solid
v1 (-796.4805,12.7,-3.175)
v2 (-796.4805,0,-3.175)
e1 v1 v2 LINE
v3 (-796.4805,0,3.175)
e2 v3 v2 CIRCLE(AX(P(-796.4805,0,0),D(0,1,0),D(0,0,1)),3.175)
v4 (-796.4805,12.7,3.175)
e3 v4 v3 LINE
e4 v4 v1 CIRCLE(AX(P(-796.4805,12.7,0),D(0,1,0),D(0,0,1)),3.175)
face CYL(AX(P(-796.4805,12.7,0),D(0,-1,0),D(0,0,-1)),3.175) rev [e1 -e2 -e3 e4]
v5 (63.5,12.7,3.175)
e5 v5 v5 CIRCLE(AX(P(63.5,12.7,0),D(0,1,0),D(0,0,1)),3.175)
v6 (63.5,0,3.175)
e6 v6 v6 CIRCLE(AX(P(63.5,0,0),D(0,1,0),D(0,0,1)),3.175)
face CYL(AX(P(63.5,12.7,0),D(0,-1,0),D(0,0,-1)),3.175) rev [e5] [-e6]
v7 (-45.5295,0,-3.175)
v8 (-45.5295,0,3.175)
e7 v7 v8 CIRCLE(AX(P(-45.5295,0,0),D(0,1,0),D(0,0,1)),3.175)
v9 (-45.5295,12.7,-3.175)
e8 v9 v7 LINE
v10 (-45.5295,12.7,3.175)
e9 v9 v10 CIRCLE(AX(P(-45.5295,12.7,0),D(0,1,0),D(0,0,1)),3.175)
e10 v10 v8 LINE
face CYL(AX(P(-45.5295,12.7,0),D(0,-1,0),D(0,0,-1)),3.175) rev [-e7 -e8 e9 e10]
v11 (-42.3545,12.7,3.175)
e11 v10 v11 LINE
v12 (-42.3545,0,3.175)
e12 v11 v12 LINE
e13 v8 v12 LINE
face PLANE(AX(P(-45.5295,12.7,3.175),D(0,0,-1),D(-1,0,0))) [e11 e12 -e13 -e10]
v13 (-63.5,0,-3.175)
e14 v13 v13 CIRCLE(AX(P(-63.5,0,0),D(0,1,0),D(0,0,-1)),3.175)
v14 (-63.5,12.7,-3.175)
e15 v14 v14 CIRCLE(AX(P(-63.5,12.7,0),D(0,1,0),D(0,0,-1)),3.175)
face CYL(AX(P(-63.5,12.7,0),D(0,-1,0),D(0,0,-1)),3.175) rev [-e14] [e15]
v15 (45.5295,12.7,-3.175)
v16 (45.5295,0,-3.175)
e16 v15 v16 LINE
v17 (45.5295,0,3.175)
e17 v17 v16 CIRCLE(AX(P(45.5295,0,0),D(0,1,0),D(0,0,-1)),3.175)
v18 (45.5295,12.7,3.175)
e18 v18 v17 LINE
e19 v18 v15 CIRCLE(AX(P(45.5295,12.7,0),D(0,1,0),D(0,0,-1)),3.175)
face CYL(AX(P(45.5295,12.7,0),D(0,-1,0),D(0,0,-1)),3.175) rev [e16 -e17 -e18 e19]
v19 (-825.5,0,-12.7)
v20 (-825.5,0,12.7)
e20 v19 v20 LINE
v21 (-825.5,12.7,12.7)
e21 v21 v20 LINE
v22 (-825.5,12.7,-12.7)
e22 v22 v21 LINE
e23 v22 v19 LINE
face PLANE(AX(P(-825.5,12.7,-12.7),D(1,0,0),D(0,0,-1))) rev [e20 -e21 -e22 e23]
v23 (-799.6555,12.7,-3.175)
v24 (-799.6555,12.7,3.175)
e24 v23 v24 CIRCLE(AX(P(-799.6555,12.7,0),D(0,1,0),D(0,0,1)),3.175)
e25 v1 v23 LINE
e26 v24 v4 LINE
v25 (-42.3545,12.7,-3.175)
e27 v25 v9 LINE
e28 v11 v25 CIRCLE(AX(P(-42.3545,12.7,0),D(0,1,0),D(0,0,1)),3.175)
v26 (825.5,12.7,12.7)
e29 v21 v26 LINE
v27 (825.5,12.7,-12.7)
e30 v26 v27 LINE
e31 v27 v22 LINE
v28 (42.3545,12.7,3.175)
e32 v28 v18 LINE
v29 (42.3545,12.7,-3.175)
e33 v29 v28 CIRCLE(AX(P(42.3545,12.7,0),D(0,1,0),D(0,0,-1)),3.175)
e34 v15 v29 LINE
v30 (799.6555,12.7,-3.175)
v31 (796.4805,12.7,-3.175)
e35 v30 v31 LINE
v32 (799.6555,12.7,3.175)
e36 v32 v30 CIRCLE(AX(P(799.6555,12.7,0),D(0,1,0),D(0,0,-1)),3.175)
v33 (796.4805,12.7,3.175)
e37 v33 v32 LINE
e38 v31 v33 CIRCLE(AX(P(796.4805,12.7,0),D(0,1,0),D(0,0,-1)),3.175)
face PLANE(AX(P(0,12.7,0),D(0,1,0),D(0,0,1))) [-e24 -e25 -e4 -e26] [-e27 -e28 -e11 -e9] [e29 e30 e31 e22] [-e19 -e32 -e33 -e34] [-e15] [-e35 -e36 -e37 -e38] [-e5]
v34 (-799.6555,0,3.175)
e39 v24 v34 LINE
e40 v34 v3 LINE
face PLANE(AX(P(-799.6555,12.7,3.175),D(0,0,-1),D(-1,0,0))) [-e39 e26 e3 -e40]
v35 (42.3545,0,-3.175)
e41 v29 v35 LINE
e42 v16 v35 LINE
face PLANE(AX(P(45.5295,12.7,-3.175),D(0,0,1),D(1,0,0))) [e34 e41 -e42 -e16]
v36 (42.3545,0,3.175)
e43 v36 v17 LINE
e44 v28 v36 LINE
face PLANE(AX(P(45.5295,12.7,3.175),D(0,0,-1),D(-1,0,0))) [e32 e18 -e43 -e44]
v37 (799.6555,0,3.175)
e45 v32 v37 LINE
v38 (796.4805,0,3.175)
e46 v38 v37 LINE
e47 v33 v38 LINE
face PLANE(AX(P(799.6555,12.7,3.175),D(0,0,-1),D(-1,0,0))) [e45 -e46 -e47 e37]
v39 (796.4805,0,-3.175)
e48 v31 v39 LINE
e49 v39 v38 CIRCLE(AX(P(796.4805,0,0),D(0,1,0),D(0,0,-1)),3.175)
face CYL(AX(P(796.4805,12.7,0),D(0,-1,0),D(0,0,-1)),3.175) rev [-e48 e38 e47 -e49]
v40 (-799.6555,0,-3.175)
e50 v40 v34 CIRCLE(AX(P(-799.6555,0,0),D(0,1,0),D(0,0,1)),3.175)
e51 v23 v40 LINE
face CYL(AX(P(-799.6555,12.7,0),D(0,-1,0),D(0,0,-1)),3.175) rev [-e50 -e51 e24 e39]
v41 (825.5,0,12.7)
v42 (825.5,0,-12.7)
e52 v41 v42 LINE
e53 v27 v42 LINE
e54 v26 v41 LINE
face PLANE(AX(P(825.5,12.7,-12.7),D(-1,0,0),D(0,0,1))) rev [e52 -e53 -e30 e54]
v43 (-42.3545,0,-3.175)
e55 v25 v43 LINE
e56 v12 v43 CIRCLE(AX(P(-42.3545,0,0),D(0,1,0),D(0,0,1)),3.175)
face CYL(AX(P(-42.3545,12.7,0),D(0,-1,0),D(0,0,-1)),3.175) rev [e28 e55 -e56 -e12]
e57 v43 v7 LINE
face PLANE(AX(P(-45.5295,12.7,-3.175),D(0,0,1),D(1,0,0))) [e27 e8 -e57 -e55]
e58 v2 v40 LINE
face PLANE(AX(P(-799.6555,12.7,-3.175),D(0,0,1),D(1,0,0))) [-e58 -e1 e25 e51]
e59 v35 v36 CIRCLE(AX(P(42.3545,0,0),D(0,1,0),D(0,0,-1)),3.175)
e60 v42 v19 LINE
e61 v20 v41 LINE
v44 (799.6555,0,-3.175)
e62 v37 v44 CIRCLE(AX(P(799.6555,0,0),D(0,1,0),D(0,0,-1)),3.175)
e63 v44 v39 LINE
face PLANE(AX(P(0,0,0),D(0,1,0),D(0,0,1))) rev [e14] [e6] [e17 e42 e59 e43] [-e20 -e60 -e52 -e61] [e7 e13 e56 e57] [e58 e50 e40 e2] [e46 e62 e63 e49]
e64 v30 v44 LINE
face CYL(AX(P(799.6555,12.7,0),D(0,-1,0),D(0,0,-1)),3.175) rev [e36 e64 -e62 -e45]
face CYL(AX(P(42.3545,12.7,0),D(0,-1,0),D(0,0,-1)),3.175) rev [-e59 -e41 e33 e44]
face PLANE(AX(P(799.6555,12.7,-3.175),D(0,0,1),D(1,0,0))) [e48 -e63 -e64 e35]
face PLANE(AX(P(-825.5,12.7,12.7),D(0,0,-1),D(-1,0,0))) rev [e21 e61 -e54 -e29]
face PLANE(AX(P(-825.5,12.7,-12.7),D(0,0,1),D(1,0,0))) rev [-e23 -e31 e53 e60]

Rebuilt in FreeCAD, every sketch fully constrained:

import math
import FreeCAD as App
import Part
import Sketcher

V = App.Vector
Q = App.Units.Quantity


def add_polygon(sketch, points):
    """Adds a closed chain of lines whose ends are joined by coincident constraints."""
    first, n = sketch.GeometryCount, len(points)
    for a, b in zip(points, points[1:] + points[:1]):
        sketch.addGeometry(Part.LineSegment(App.Vector(*a, 0), App.Vector(*b, 0)), False)
    for i in range(n):
        sketch.addConstraint(Sketcher.Constraint("Coincident", first + i, 2, first + (i + 1) % n, 1))

doc = App.newDocument("Part")
body = doc.addObject("PartDesign::Body", "Body")

sketch1 = body.newObject("Sketcher::SketchObject", "Sketch")
sketch1.AttachmentSupport = (doc.getObject("XZ_Plane"), [""])
sketch1.MapMode = "FlatFace"
add_polygon(sketch1, [(-825.5, -12.7), (-825.5, 12.7), (825.5, 12.7), (825.5, -12.7)])
sketch1.addGeometry(Part.ArcOfCircle(Part.Circle(V(-799.7, 0, 0), V(0, 0, 1), 3.2), math.radians(90), math.radians(270)), False)
sketch1.addGeometry(Part.LineSegment(V(-799.7, -3.2, 0), V(-796.5, -3.2, 0)), False)
sketch1.addGeometry(Part.ArcOfCircle(Part.Circle(V(-796.5, 0, 0), V(0, 0, 1), 3.2), math.radians(-90), math.radians(90)), False)
sketch1.addGeometry(Part.LineSegment(V(-796.5, 3.2, 0), V(-799.7, 3.2, 0)), False)
sketch1.addGeometry(Part.Circle(V(-63.5, 0, 0), V(0, 0, 1), 3.2), False)
sketch1.addGeometry(Part.ArcOfCircle(Part.Circle(V(-45.5, 0, 0), V(0, 0, 1), 3.2), math.radians(90), math.radians(270)), False)
sketch1.addGeometry(Part.LineSegment(V(-45.5, -3.2, 0), V(-42.4, -3.2, 0)), False)
sketch1.addGeometry(Part.ArcOfCircle(Part.Circle(V(-42.4, 0, 0), V(0, 0, 1), 3.2), math.radians(-90), math.radians(90)), False)
sketch1.addGeometry(Part.LineSegment(V(-42.4, 3.2, 0), V(-45.5, 3.2, 0)), False)
sketch1.addGeometry(Part.LineSegment(V(42.4, -3.2, 0), V(45.5, -3.2, 0)), False)
sketch1.addGeometry(Part.ArcOfCircle(Part.Circle(V(45.5, 0, 0), V(0, 0, 1), 3.2), math.radians(-90), math.radians(90)), False)
sketch1.addGeometry(Part.LineSegment(V(45.5, 3.2, 0), V(42.4, 3.2, 0)), False)
sketch1.addGeometry(Part.ArcOfCircle(Part.Circle(V(42.4, 0, 0), V(0, 0, 1), 3.2), math.radians(90), math.radians(270)), False)
sketch1.addGeometry(Part.Circle(V(63.5, 0, 0), V(0, 0, 1), 3.2), False)
sketch1.addGeometry(Part.LineSegment(V(796.5, -3.2, 0), V(799.7, -3.2, 0)), False)
sketch1.addGeometry(Part.ArcOfCircle(Part.Circle(V(799.7, 0, 0), V(0, 0, 1), 3.2), math.radians(-90), math.radians(90)), False)
sketch1.addGeometry(Part.LineSegment(V(799.7, 3.2, 0), V(796.5, 3.2, 0)), False)
sketch1.addGeometry(Part.ArcOfCircle(Part.Circle(V(796.5, 0, 0), V(0, 0, 1), 3.2), math.radians(90), math.radians(270)), False)
sketch1.addConstraint(Sketcher.Constraint("Tangent", 4, 2, 5, 1))
sketch1.addConstraint(Sketcher.Constraint("Tangent", 5, 2, 6, 1))
sketch1.addConstraint(Sketcher.Constraint("Tangent", 6, 2, 7, 1))
sketch1.addConstraint(Sketcher.Constraint("Tangent", 7, 2, 4, 1))
sketch1.addConstraint(Sketcher.Constraint("Tangent", 9, 2, 10, 1))
sketch1.addConstraint(Sketcher.Constraint("Tangent", 10, 2, 11, 1))
sketch1.addConstraint(Sketcher.Constraint("Tangent", 11, 2, 12, 1))
sketch1.addConstraint(Sketcher.Constraint("Tangent", 12, 2, 9, 1))
sketch1.addConstraint(Sketcher.Constraint("Tangent", 13, 2, 14, 1))
sketch1.addConstraint(Sketcher.Constraint("Tangent", 14, 2, 15, 1))
sketch1.addConstraint(Sketcher.Constraint("Tangent", 15, 2, 16, 1))
sketch1.addConstraint(Sketcher.Constraint("Tangent", 16, 2, 13, 1))
sketch1.addConstraint(Sketcher.Constraint("Tangent", 18, 2, 19, 1))
sketch1.addConstraint(Sketcher.Constraint("Tangent", 19, 2, 20, 1))
sketch1.addConstraint(Sketcher.Constraint("Tangent", 20, 2, 21, 1))
sketch1.addConstraint(Sketcher.Constraint("Tangent", 21, 2, 18, 1))
sketch1.addConstraint(Sketcher.Constraint("Vertical", 0))
sketch1.addConstraint(Sketcher.Constraint("Horizontal", 1))
sketch1.addConstraint(Sketcher.Constraint("Vertical", 2))
sketch1.addConstraint(Sketcher.Constraint("Horizontal", 3))
sketch1.addConstraint(Sketcher.Constraint("Horizontal", 5))
sketch1.addConstraint(Sketcher.Constraint("Horizontal", 7))
sketch1.addConstraint(Sketcher.Constraint("Horizontal", 10))
sketch1.addConstraint(Sketcher.Constraint("Horizontal", 12))
sketch1.addConstraint(Sketcher.Constraint("Horizontal", 13))
sketch1.addConstraint(Sketcher.Constraint("Horizontal", 15))
sketch1.addConstraint(Sketcher.Constraint("Horizontal", 18))
sketch1.addConstraint(Sketcher.Constraint("Horizontal", 20))
sketch1.addConstraint(Sketcher.Constraint("Equal", 6, 8))
sketch1.addConstraint(Sketcher.Constraint("Equal", 8, 9))
sketch1.addConstraint(Sketcher.Constraint("Equal", 11, 14))
sketch1.addConstraint(Sketcher.Constraint("Equal", 16, 17))
sketch1.addConstraint(Sketcher.Constraint("Equal", 17, 19))
sketch1.addConstraint(Sketcher.Constraint("Symmetric", 9, 3, 14, 3, -1, 1))
sketch1.addConstraint(Sketcher.Constraint("Symmetric", 8, 3, 17, 3, -1, 1))
sketch1.addConstraint(Sketcher.Constraint("Symmetric", 4, 3, 19, 3, -1, 1))
sketch1.addConstraint(Sketcher.Constraint("Symmetric", 0, 2, 2, 2, -1, 1))
sketch1.addConstraint(Sketcher.Constraint("Symmetric", 11, 3, 16, 3, -2))
sketch1.addConstraint(Sketcher.Constraint("Symmetric", 6, 3, 21, 3, -2))
sketch1.addConstraint(Sketcher.Constraint("PointOnObject", 8, 3, -1))
sketch1.addConstraint(Sketcher.Constraint("Equal", 7, 10))
sketch1.addConstraint(Sketcher.Constraint("Diameter", 8, Q("0.25 in")))
sketch1.addConstraint(Sketcher.Constraint("DistanceX", 1, 1, 1, 2, Q("65 in")))
sketch1.addConstraint(Sketcher.Constraint("DistanceY", 0, 1, 0, 2, Q("1 in")))
sketch1.addConstraint(Sketcher.Constraint("DistanceX", 8, 3, 17, 3, Q("5 in")))
sketch1.addConstraint(Sketcher.Constraint("DistanceX", 5, 1, 5, 2, Q("0.125 in")))
sketch1.addConstraint(Sketcher.Constraint("DistanceX", 4, 3, 9, 3, Q("29.69 in")))
sketch1.addConstraint(Sketcher.Constraint("DistanceX", 11, 3, 14, 3, Q("3.46 in")))
pad1 = body.newObject("PartDesign::Pad", "Pad")
pad1.Profile = sketch1
pad1.Length = Q("0.5 in")
pad1.Reversed = True

doc.recompute()
